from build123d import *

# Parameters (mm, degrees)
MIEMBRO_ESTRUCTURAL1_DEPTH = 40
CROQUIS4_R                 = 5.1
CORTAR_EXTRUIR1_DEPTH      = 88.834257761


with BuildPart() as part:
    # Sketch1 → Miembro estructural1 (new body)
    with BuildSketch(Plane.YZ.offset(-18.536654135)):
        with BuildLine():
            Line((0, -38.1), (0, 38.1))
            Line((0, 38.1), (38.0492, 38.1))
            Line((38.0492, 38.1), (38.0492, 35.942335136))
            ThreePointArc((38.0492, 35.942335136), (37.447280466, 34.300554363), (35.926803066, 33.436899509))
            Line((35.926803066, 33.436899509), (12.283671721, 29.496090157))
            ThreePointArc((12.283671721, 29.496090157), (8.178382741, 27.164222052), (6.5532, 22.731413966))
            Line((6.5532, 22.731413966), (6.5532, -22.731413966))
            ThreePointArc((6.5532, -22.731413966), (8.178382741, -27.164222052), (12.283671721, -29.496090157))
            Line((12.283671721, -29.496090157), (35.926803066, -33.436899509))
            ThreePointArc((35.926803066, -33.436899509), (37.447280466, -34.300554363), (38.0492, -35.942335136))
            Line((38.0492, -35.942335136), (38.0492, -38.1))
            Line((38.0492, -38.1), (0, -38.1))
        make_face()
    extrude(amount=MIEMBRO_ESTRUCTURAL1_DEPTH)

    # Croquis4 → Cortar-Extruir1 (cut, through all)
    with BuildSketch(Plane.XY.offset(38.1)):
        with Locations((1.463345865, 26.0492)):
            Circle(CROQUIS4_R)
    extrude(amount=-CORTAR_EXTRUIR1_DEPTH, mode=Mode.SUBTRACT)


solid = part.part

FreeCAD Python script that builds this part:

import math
import FreeCAD as App
import Part
import Sketcher

V = App.Vector
Q = App.Units.Quantity

doc = App.newDocument("Part")
body = doc.addObject("PartDesign::Body", "Body")

# Sketch on YZ plane
sketch1 = doc.addObject("Sketcher::SketchObject", "Sketch")
body.addObject(sketch1)
sketch1.AttachmentSupport = (doc.YZ_Plane, [""])
sketch1.MapMode = "FlatFace"
sketch1.AttachmentOffset = App.Placement(V(0, 0, -18.536654), App.Rotation())
sketch1.addGeometry(Part.LineSegment(V(0, 38.1, 0), V(0, -38.1, 0)), False)
sketch1.addGeometry(Part.LineSegment(V(0, -38.1, 0), V(38.0492, -38.1, 0)), False)
sketch1.addGeometry(Part.LineSegment(V(38.0492, -38.1, 0), V(38.0492, -35.942335, 0)), False)
sketch1.addGeometry(Part.ArcOfCircle(Part.Circle(V(35.5092, -35.942335, 0), V(0, 0, 1), 2.54), math.radians(0), math.radians(80.537)), False)
sketch1.addGeometry(Part.LineSegment(V(35.926803, -33.4369, 0), V(12.283672, -29.49609, 0)), False)
sketch1.addGeometry(Part.ArcOfCircle(Part.Circle(V(13.4112, -22.731414, 0), V(0, 0, 1), 6.858), math.radians(-180), math.radians(-99.463)), False)
sketch1.addGeometry(Part.LineSegment(V(6.5532, -22.731414, 0), V(6.5532, 22.731414, 0)), False)
sketch1.addGeometry(Part.ArcOfCircle(Part.Circle(V(13.4112, 22.731414, 0), V(0, 0, 1), 6.858), math.radians(99.463), math.radians(180)), False)
sketch1.addGeometry(Part.LineSegment(V(12.283672, 29.49609, 0), V(35.926803, 33.4369, 0)), False)
sketch1.addGeometry(Part.ArcOfCircle(Part.Circle(V(35.5092, 35.942335, 0), V(0, 0, 1), 2.54), math.radians(-80.537), math.radians(0)), False)
sketch1.addGeometry(Part.LineSegment(V(38.0492, 35.942335, 0), V(38.0492, 38.1, 0)), False)
sketch1.addGeometry(Part.LineSegment(V(38.0492, 38.1, 0), V(0, 38.1, 0)), False)
sketch1.addConstraint(Sketcher.Constraint("Coincident", 0, 2, 1, 1))
sketch1.addConstraint(Sketcher.Constraint("Coincident", 1, 2, 2, 1))
sketch1.addConstraint(Sketcher.Constraint("Coincident", 2, 2, 3, 1))
sketch1.addConstraint(Sketcher.Constraint("Coincident", 3, 2, 4, 1))
sketch1.addConstraint(Sketcher.Constraint("Coincident", 4, 2, 5, 2))
sketch1.addConstraint(Sketcher.Constraint("Coincident", 5, 1, 6, 1))
sketch1.addConstraint(Sketcher.Constraint("Coincident", 6, 2, 7, 2))
sketch1.addConstraint(Sketcher.Constraint("Coincident", 7, 1, 8, 1))
sketch1.addConstraint(Sketcher.Constraint("Coincident", 8, 2, 9, 1))
sketch1.addConstraint(Sketcher.Constraint("Coincident", 9, 2, 10, 1))
sketch1.addConstraint(Sketcher.Constraint("Coincident", 10, 2, 11, 1))
sketch1.addConstraint(Sketcher.Constraint("Coincident", 11, 2, 0, 1))
sketch1.addConstraint(Sketcher.Constraint("Vertical", 0))
sketch1.addConstraint(Sketcher.Constraint("Horizontal", 1))
sketch1.addConstraint(Sketcher.Constraint("Vertical", 2))
sketch1.addConstraint(Sketcher.Constraint("Vertical", 6))
sketch1.addConstraint(Sketcher.Constraint("Vertical", 10))
sketch1.addConstraint(Sketcher.Constraint("Horizontal", 11))
sketch1.addConstraint(Sketcher.Constraint("PointOnObject", 0, 2, -2))
sketch1.addConstraint(Sketcher.Constraint("Radius", 3, Q("0.1 in")))
sketch1.addConstraint(Sketcher.Constraint("Radius", 9, Q("0.1 in")))
sketch1.addConstraint(Sketcher.Constraint("DistanceY", 0, 2, 0, 1, Q("3 in")))
sketch1.addConstraint(Sketcher.Constraint("Radius", 5, Q("0.27 in")))
sketch1.addConstraint(Sketcher.Constraint("Radius", 7, Q("0.27 in")))
sketch1.addConstraint(Sketcher.Constraint("DistanceY", 0, 2, -1, 1, Q("1.5 in")))
sketch1.addConstraint(Sketcher.Constraint("DistanceX", 9, 3, 1, 2, Q("0.1 in")))
sketch1.addConstraint(Sketcher.Constraint("DistanceX", 1, 1, 1, 2, Q("1.498 in")))
sketch1.addConstraint(Sketcher.Constraint("DistanceX", 5, 3, 3, 3, Q("0.87 in")))
sketch1.addConstraint(Sketcher.Constraint("DistanceY", 3, 2, -1, 1, Q("33.4369 mm")))
sketch1.addConstraint(Sketcher.Constraint("DistanceY", -1, 1, 8, 2, Q("33.4369 mm")))
sketch1.addConstraint(Sketcher.Constraint("DistanceY", 2, 1, 2, 2, Q("2.157665 mm")))
sketch1.addConstraint(Sketcher.Constraint("DistanceY", 6, 1, 6, 2, Q("45.462828 mm")))
sketch1.addConstraint(Sketcher.Constraint("DistanceY", 10, 1, 10, 2, Q("2.157665 mm")))
sketch1.addConstraint(Sketcher.Constraint("DistanceX", -1, 1, 4, 2, Q("12.283672 mm")))
sketch1.addConstraint(Sketcher.Constraint("DistanceY", 4, 2, -1, 1, Q("29.49609 mm")))
sketch1.addConstraint(Sketcher.Constraint("DistanceX", -1, 1, 7, 1, Q("12.283672 mm")))
sketch1.addConstraint(Sketcher.Constraint("DistanceY", -1, 1, 7, 1, Q("29.49609 mm")))
sketch1.addConstraint(Sketcher.Constraint("DistanceY", 3, 3, 5, 3, Q("13.210921 mm")))
sketch1.addConstraint(Sketcher.Constraint("DistanceY", 7, 3, 9, 3, Q("13.210921 mm")))
sketch1.addConstraint(Sketcher.Constraint("DistanceY", 3, 3, 5, 1, Q("13.210921 mm")))
pad1 = doc.addObject("PartDesign::Pad", "Pad")
body.addObject(pad1)
pad1.Profile = sketch1
pad1.Length = 40

# Sketch on XY plane
sketch2 = doc.addObject("Sketcher::SketchObject", "Sketch001")
body.addObject(sketch2)
sketch2.AttachmentSupport = (doc.XY_Plane, [""])
sketch2.MapMode = "FlatFace"
sketch2.AttachmentOffset = App.Placement(V(0, 0, 1.5 * 25.4), App.Rotation())
sketch2.addGeometry(Part.Circle(V(1, 26, 0), V(0, 0, 1), 5), False)
sketch2.addConstraint(Sketcher.Constraint("Diameter", 0, Q("10.2 mm")))
sketch2.addConstraint(Sketcher.Constraint("DistanceY", -1, 1, 0, 3, Q("26.0492 mm")))
sketch2.addConstraint(Sketcher.Constraint("DistanceX", -1, 1, 0, 3, Q("1.463346 mm")))
pocket1 = doc.addObject("PartDesign::Pocket", "Pocket")
body.addObject(pocket1)
pocket1.Profile = sketch2
pocket1.Type = "ThroughAll"

doc.recompute()
